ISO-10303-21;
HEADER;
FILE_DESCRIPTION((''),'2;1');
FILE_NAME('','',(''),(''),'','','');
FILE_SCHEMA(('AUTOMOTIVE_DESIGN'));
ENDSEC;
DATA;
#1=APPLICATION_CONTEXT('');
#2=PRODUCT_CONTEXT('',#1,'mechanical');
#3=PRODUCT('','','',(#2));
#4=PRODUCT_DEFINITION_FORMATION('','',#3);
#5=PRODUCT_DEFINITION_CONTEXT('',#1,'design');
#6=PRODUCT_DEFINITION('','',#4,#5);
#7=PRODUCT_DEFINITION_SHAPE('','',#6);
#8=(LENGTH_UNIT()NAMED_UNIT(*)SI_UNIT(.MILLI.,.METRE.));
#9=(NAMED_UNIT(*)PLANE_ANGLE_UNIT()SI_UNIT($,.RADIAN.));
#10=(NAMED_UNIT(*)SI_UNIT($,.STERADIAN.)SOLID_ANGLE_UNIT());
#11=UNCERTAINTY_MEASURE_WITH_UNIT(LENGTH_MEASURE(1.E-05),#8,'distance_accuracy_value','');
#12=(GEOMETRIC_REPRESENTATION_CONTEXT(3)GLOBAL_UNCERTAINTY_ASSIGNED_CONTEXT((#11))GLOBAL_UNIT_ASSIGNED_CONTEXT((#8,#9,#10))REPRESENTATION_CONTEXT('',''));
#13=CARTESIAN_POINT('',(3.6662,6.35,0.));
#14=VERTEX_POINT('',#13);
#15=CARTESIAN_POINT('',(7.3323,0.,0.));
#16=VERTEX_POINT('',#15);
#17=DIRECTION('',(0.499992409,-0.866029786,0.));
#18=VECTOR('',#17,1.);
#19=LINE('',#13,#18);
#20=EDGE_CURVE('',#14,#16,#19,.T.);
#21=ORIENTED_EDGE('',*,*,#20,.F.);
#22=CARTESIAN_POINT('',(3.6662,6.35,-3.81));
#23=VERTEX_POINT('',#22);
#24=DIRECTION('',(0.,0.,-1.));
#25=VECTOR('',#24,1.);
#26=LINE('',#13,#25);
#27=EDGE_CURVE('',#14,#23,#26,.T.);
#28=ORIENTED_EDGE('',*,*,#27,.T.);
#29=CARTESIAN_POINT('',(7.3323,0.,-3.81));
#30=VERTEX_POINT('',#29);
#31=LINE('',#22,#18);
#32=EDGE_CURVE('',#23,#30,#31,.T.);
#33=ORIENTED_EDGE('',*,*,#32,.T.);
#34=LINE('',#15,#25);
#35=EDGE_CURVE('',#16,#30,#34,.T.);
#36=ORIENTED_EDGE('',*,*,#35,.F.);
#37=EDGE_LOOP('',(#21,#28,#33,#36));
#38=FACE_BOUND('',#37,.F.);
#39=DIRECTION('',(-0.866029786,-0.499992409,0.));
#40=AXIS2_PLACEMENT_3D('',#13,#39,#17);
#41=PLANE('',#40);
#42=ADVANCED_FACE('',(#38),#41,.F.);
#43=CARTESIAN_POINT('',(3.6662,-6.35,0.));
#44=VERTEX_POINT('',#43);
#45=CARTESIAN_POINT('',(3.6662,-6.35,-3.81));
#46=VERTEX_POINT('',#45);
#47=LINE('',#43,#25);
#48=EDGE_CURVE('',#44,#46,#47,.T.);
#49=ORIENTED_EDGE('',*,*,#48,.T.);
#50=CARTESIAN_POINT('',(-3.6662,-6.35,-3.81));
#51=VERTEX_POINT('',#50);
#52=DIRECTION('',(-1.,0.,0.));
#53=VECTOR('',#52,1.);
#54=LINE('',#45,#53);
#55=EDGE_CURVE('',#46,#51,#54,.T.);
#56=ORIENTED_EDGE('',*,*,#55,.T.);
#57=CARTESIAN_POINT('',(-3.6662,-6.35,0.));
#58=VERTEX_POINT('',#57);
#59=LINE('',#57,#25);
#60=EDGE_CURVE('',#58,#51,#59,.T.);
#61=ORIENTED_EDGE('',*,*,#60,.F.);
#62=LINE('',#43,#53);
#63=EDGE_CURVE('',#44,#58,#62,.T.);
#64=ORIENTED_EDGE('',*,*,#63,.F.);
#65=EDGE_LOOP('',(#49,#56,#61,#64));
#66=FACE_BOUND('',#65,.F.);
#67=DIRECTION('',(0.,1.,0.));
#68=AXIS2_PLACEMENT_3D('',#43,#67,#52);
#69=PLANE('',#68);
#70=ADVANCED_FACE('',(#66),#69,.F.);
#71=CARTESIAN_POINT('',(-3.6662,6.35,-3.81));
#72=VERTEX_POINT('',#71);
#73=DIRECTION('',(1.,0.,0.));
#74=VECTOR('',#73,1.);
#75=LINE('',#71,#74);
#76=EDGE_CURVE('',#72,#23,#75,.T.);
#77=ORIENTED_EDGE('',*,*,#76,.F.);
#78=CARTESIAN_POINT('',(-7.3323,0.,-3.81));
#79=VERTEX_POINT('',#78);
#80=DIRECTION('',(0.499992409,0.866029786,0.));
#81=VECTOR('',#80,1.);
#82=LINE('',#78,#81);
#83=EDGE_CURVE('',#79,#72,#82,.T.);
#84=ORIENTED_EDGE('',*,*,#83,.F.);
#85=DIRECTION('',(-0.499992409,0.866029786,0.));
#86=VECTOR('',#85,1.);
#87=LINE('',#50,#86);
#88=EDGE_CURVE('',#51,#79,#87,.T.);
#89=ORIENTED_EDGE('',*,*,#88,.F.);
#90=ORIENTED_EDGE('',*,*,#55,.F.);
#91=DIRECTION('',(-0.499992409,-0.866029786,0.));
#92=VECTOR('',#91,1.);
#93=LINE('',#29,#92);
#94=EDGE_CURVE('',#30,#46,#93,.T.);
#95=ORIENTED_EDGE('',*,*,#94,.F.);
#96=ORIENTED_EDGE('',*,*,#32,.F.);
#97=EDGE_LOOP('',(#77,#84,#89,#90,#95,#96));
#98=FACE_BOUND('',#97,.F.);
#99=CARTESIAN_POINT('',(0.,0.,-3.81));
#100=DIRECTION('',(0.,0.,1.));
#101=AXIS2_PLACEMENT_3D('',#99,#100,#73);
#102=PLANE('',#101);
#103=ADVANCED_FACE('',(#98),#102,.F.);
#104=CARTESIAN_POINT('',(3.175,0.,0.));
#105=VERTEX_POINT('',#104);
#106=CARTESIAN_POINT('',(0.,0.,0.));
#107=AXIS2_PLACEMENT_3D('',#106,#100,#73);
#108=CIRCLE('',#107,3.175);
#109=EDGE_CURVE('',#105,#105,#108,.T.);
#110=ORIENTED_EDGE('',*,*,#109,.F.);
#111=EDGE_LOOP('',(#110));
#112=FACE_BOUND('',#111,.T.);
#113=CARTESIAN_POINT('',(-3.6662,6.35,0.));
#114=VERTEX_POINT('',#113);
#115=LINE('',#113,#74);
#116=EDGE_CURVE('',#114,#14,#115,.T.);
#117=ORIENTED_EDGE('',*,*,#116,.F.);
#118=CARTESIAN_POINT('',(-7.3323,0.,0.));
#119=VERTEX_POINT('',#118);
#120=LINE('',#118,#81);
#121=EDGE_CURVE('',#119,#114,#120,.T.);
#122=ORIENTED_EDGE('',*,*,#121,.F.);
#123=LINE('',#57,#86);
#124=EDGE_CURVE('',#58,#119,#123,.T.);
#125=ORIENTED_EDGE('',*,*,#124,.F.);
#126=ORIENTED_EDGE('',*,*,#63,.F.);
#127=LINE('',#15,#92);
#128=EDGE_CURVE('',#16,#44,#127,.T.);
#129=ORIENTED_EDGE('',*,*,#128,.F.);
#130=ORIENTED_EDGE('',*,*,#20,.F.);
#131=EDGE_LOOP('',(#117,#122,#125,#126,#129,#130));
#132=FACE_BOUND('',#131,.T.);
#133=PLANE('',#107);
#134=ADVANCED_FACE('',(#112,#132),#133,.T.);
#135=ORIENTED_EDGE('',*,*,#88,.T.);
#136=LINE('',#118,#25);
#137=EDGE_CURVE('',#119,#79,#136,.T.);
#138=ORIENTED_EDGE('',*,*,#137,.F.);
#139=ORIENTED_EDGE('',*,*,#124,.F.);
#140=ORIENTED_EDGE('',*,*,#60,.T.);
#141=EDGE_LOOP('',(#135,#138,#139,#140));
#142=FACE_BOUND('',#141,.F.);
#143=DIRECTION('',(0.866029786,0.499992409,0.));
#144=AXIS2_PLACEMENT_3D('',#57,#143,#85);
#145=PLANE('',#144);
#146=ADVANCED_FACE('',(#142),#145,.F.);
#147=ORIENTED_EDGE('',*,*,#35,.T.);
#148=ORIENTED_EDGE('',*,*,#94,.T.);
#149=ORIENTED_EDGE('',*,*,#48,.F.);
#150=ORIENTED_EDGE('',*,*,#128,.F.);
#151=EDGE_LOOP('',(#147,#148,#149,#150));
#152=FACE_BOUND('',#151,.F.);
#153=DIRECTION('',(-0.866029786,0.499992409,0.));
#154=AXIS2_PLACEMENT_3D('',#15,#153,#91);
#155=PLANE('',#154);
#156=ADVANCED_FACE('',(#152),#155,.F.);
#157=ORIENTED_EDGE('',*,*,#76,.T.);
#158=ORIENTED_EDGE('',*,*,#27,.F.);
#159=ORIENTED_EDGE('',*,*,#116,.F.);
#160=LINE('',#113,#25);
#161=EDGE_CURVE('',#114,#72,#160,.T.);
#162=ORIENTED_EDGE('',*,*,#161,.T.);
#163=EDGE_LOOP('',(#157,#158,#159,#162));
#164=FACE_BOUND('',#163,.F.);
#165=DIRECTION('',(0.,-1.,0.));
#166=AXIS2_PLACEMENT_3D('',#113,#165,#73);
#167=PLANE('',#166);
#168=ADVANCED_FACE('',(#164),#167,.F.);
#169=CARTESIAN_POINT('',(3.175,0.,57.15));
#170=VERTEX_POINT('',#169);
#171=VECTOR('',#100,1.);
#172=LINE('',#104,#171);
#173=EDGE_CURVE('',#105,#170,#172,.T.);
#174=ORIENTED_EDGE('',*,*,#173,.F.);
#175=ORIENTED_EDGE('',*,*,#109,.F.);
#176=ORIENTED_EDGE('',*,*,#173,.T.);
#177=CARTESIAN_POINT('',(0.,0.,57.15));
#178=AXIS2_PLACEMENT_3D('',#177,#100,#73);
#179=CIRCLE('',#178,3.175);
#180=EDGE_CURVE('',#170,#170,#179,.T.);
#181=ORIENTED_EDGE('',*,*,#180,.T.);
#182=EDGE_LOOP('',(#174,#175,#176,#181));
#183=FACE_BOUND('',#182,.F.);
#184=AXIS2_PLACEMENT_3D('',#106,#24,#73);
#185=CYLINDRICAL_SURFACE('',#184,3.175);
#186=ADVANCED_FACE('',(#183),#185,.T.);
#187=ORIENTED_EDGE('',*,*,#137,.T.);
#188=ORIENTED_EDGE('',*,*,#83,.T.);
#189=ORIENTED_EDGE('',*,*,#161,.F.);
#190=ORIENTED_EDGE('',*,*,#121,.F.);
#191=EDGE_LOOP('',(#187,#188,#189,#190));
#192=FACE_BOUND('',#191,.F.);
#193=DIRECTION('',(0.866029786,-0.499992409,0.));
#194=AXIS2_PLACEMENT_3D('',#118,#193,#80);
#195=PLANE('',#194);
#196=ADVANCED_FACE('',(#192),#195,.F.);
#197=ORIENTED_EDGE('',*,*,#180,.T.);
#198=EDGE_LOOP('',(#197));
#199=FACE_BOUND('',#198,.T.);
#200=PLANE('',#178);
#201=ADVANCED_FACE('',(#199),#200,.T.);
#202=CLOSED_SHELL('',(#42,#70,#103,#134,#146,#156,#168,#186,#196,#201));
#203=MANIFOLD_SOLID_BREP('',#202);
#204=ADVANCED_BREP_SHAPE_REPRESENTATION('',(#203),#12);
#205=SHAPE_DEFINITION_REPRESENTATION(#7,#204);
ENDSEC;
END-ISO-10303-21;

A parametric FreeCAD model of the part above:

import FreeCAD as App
import Part
import Sketcher
from FreeCAD import Vector
Q = App.Units.Quantity

doc = App.newDocument("Part")
body = doc.addObject("PartDesign::Body", "Body")

sketch1 = body.newObject("Sketcher::SketchObject", "Sketch")
sketch1.AttachmentSupport = (doc.getObject("XY_Plane"), [""])
sketch1.MapMode = "FlatFace"
sketch1.addGeometry([
    Part.LineSegment(Vector(-4, 6, 0), Vector(-7, 0, 0)),
    Part.LineSegment(Vector(-7, 0, 0), Vector(-4, -6, 0)),
    Part.LineSegment(Vector(-4, -6, 0), Vector(4, -6, 0)),
    Part.LineSegment(Vector(4, -6, 0), Vector(7, 0, 0)),
    Part.LineSegment(Vector(7, 0, 0), Vector(4, 6, 0)),
    Part.LineSegment(Vector(4, 6, 0), Vector(-4, 6, 0)),
], False)
sketch1.addConstraint([
    Sketcher.Constraint("Coincident", 0, 2, 1, 1),
    Sketcher.Constraint("Coincident", 1, 2, 2, 1),
    Sketcher.Constraint("Coincident", 2, 2, 3, 1),
    Sketcher.Constraint("Coincident", 3, 2, 4, 1),
    Sketcher.Constraint("Coincident", 4, 2, 5, 1),
    Sketcher.Constraint("Coincident", 5, 2, 0, 1),
    Sketcher.Constraint("Horizontal", 2),
    Sketcher.Constraint("Horizontal", 5),
    Sketcher.Constraint("Symmetric", 0, 2, 3, 2, -1, 1),
    Sketcher.Constraint("Symmetric", 1, 2, 4, 2, -1, 1),
    Sketcher.Constraint("PointOnObject", 0, 2, -1),
    Sketcher.Constraint("Parallel", 0, 3),
    Sketcher.Constraint("Vertical", 2, 2, 4, 2),
    Sketcher.Constraint("DistanceY", 2, 2, 4, 2, Q("0.5 in")),
    Sketcher.Constraint("Angle", 0, Q("-119.9995 deg")),
    Sketcher.Constraint("DistanceX", 0, 2, 2, 2, Q("0.433 in")),
])
pad1 = body.newObject("PartDesign::Pad", "Pad")
pad1.Profile = sketch1
pad1.Length = Q("0.15 in")
pad1.Reversed = True

sketch2 = body.newObject("Sketcher::SketchObject", "Sketch001")
sketch2.AttachmentSupport = (doc.getObject("XY_Plane"), [""])
sketch2.MapMode = "FlatFace"
sketch2.addGeometry(Part.Circle(Vector(0, 0, 0), Vector(0, 0, 1), 3.2), False)
sketch2.addConstraint([
    Sketcher.Constraint("Coincident", 0, 3, -1, 1),
    Sketcher.Constraint("Diameter", 0, Q("0.25 in")),
])
pad2 = body.newObject("PartDesign::Pad", "Pad001")
pad2.Profile = sketch2
pad2.Length = Q("2.25 in")

doc.recompute()
